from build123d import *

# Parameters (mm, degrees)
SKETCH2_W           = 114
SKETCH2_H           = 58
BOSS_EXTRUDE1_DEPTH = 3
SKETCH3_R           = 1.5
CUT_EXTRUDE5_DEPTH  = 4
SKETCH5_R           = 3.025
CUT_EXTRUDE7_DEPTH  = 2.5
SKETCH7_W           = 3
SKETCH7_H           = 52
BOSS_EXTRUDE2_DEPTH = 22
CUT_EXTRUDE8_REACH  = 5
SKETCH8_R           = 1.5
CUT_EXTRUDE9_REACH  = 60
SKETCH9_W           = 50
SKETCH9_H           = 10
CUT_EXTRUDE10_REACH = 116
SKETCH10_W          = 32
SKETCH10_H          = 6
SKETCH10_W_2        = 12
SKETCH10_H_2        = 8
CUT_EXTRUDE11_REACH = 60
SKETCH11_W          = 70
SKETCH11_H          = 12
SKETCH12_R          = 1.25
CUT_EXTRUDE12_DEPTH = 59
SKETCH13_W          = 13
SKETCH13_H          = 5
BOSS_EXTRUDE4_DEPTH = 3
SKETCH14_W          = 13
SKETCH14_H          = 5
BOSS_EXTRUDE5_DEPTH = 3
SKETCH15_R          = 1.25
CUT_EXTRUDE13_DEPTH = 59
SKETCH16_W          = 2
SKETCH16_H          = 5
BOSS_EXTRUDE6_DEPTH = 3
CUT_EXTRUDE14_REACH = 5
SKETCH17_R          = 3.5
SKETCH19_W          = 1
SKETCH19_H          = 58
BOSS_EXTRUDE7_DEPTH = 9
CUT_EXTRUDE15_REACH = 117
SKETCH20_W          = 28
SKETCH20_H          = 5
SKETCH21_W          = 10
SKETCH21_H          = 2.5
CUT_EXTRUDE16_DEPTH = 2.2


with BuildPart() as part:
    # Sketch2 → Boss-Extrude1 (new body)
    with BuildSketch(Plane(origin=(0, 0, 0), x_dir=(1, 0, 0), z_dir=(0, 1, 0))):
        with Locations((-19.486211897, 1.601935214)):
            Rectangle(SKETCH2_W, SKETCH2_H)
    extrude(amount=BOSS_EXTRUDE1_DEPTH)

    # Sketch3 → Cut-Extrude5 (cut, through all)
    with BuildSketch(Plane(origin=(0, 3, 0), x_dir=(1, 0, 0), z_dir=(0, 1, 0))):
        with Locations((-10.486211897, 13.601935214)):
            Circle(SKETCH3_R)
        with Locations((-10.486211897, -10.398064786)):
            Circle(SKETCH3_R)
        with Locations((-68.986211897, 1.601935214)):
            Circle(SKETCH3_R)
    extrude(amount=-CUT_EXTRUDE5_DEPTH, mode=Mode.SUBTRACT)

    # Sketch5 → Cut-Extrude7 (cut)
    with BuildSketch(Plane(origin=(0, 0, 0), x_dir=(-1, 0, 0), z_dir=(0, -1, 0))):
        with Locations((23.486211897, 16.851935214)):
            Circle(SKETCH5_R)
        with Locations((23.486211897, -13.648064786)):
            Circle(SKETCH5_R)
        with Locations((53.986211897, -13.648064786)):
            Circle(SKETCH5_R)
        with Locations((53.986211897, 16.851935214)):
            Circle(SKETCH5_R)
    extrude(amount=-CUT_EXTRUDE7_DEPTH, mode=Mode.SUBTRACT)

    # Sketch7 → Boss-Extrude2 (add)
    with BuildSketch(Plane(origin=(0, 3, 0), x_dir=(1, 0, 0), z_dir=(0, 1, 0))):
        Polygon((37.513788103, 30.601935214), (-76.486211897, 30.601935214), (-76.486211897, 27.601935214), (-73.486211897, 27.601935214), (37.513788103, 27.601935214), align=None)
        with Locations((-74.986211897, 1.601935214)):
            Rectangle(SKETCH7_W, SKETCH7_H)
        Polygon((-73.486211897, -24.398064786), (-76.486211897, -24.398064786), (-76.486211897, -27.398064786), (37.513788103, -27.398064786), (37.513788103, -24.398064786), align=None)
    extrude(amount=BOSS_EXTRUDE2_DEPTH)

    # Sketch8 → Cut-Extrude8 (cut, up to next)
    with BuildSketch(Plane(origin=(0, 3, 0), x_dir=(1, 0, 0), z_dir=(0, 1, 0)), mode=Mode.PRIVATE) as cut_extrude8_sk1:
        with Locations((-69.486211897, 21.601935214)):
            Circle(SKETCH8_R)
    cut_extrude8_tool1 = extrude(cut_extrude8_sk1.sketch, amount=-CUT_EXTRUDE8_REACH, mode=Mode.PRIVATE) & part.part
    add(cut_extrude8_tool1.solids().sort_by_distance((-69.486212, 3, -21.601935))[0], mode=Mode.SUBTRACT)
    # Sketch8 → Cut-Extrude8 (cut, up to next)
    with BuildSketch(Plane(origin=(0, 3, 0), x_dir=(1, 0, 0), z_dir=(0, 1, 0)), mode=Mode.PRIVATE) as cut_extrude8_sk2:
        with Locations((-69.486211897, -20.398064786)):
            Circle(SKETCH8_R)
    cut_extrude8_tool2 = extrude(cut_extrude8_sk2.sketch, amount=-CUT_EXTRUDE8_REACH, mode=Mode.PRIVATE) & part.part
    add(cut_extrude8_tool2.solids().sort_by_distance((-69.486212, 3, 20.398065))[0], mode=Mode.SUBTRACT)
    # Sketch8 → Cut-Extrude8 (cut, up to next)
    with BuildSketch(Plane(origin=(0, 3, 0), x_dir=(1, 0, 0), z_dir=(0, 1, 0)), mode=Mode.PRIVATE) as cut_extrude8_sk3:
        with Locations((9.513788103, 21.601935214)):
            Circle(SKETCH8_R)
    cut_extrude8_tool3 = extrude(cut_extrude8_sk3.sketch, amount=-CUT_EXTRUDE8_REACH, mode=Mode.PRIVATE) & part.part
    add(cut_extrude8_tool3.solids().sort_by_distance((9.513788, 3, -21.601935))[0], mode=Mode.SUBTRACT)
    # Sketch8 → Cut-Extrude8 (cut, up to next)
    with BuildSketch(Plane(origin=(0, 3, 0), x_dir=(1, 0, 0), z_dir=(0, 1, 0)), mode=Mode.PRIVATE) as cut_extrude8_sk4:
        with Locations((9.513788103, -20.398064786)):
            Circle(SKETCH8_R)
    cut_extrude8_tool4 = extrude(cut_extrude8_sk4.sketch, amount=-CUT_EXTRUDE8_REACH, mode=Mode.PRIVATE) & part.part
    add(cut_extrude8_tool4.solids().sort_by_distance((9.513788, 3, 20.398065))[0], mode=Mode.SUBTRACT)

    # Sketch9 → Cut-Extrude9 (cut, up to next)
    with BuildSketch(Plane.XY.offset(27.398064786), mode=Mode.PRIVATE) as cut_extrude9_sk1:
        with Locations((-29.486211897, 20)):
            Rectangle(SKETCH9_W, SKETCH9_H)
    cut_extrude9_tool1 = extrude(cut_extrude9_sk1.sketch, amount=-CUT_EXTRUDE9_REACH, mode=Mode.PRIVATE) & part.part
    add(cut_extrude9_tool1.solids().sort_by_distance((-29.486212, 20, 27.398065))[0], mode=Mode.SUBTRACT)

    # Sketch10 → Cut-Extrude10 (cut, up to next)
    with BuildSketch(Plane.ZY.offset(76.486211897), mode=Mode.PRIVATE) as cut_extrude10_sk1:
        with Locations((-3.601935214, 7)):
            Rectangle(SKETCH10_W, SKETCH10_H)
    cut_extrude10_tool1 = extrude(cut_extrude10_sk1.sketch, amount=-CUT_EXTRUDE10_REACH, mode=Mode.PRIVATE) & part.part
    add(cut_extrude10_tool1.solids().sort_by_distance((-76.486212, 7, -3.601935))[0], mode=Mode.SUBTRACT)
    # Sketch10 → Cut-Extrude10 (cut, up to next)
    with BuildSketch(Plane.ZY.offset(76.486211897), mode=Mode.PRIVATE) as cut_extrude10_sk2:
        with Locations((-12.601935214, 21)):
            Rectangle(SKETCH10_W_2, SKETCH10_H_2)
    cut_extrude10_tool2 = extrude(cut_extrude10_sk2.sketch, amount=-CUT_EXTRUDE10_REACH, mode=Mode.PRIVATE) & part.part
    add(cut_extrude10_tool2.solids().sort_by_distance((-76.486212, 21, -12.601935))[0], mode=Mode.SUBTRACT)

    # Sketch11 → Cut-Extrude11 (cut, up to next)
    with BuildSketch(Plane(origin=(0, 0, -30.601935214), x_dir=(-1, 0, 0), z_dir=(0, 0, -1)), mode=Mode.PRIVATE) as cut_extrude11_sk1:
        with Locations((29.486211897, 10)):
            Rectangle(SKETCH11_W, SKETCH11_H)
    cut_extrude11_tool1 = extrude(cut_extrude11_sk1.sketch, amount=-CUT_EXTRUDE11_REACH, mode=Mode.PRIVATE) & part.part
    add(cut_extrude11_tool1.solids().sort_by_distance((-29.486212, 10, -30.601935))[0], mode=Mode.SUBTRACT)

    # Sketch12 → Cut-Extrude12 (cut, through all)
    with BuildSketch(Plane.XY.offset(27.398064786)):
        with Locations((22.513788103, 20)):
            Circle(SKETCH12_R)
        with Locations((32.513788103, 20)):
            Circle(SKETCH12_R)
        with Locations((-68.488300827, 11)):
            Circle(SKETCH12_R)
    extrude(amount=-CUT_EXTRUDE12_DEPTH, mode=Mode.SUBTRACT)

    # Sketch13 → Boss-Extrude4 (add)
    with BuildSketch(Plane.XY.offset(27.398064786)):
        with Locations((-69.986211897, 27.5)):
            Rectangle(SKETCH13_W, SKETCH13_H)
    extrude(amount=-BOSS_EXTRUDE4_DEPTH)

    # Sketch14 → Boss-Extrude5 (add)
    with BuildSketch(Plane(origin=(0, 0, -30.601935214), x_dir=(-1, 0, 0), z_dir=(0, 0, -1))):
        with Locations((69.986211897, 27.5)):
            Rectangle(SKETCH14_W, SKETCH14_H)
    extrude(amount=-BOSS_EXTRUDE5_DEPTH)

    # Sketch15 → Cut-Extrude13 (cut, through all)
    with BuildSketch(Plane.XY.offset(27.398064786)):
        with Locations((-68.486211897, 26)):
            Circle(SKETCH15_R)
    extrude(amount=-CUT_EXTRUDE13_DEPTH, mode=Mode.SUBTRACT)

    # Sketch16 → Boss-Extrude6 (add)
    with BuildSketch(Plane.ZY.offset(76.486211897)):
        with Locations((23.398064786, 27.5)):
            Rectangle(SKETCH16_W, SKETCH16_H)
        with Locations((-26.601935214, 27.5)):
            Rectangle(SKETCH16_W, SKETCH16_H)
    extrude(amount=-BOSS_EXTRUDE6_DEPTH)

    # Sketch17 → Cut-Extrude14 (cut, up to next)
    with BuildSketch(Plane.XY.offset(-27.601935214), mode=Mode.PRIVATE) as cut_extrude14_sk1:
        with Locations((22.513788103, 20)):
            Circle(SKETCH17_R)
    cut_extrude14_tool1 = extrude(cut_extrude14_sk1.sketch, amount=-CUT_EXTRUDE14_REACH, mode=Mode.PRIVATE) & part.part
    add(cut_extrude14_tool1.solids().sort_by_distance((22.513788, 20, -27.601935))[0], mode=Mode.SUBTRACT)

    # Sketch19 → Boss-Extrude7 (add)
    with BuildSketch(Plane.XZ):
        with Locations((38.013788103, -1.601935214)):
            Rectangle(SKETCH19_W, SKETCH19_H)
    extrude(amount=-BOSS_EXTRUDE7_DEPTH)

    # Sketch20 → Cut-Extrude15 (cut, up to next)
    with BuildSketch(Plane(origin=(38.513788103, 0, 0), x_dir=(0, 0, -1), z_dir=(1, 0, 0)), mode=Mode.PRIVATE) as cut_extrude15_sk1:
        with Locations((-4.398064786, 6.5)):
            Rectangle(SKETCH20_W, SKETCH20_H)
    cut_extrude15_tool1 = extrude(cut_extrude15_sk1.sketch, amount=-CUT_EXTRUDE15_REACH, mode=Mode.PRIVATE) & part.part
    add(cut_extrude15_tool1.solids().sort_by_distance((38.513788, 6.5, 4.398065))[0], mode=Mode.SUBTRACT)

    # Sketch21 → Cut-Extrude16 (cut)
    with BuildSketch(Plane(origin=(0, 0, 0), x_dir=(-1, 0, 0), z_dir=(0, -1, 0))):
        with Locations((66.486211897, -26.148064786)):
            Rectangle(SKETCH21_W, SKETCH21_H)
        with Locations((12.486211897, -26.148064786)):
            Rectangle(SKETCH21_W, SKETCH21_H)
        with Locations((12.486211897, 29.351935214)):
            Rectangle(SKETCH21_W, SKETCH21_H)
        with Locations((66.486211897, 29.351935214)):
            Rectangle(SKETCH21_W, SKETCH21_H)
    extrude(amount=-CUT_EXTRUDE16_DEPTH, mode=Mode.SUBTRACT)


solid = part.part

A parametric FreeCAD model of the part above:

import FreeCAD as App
import Part
import Sketcher

V = App.Vector


def add_polygon(sketch, points):
    """Adds a closed chain of lines whose ends are joined by coincident constraints."""
    first, n = sketch.GeometryCount, len(points)
    for a, b in zip(points, points[1:] + points[:1]):
        sketch.addGeometry(Part.LineSegment(App.Vector(*a, 0), App.Vector(*b, 0)), False)
    for i in range(n):
        sketch.addConstraint(Sketcher.Constraint("Coincident", first + i, 2, first + (i + 1) % n, 1))

doc = App.newDocument("Part")
params = doc.addObject("Spreadsheet::Sheet", "Params")
for row, (alias, value) in enumerate([
    ("sketch1_width", "114 mm"),
    ("sketch1_height", "58 mm"),
    ("pad1_length", "3 mm"),
    ("sketch2_diameter", "3 mm"),
    ("sketch3_diameter", "6.05 mm"),
    ("pocket2_length", "2.5 mm"),
    ("sketch4_width", "114 mm"),
    ("sketch4_width2", "111 mm"),
    ("sketch4_height", "58 mm"),
    ("sketch4_height2", "3 mm"),
    ("pad2_length", "22 mm"),
    ("sketch5_diameter", "3 mm"),
    ("sketch6_diameter", "3 mm"),
    ("sketch7_diameter", "3 mm"),
    ("sketch8_diameter", "3 mm"),
    ("sketch9_width", "50 mm"),
    ("sketch9_height", "10 mm"),
    ("sketch10_width", "6 mm"),
    ("sketch10_height", "32 mm"),
    ("sketch11_width", "8 mm"),
    ("sketch11_height", "12 mm"),
    ("sketch12_width", "70 mm"),
    ("sketch12_height", "12 mm"),
    ("sketch13_diameter", "2.5 mm"),
    ("sketch14_width", "13 mm"),
    ("sketch14_height", "5 mm"),
    ("pad3_length", "3 mm"),
    ("sketch15_width", "13 mm"),
    ("sketch15_height", "5 mm"),
    ("pad4_length", "3 mm"),
    ("sketch16_diameter", "2.5 mm"),
    ("sketch17_width", "5 mm"),
    ("sketch17_height", "2 mm"),
    ("pad5_length", "3 mm"),
    ("sketch18_diameter", "7 mm"),
    ("pocket13_length", "3 mm"),
    ("sketch19_width", "1 mm"),
    ("sketch19_height", "58 mm"),
    ("pad6_length", "9 mm"),
    ("sketch20_width", "5 mm"),
    ("sketch20_height", "28 mm"),
    ("sketch21_width", "10 mm"),
    ("sketch21_height", "2.5 mm"),
    ("pocket15_length", "2.2 mm"),
], start=1):
    params.set(f"A{row}", alias)
    params.set(f"B{row}", "=" + value)
    params.setAlias(f"B{row}", alias)

body = doc.addObject("PartDesign::Body", "Body")

# Sketch on XZ plane
sketch1 = body.newObject("Sketcher::SketchObject", "Sketch")
sketch1.AttachmentSupport = (doc.getObject("XZ_Plane"), [""])
sketch1.MapMode = "FlatFace"
add_polygon(sketch1, [(-76.486212, -30.601935), (-76.486212, 27.398065), (37.513788, 27.398065), (37.513788, -30.601935)])  # lines 0-3
sketch1.addConstraint(Sketcher.Constraint("Vertical", 0))
sketch1.addConstraint(Sketcher.Constraint("Horizontal", 1))
sketch1.addConstraint(Sketcher.Constraint("Vertical", 2))
sketch1.addConstraint(Sketcher.Constraint("Horizontal", 3))
sketch1.addConstraint(Sketcher.Constraint("DistanceX", 1, 1, 1, 2, 114.0))
sketch1.addConstraint(Sketcher.Constraint("DistanceY", 0, 1, 0, 2, 58.0))
sketch1.addConstraint(Sketcher.Constraint("DistanceX", 0, 2, -1, 1, 76.486212))
sketch1.addConstraint(Sketcher.Constraint("DistanceY", -1, 1, 0, 2, 27.398065))
sketch1.setExpression("Constraints[8]", "Params.sketch1_width")
sketch1.setExpression("Constraints[9]", "Params.sketch1_height")
pad1 = body.newObject("PartDesign::Pad", "Pad")
pad1.Profile = sketch1
pad1.setExpression("Length", "Params.pad1_length")
pad1.Reversed = True

# Sketch on XZ plane
sketch2 = body.newObject("Sketcher::SketchObject", "Sketch001")
sketch2.AttachmentSupport = (doc.getObject("XZ_Plane"), [""])
sketch2.MapMode = "FlatFace"
sketch2.AttachmentOffset = App.Placement(V(0, 0, -3), App.Rotation())
sketch2.addGeometry(Part.Circle(V(-10.486212, -13.601935, 0), V(0, 0, 1), 1.5), False)
sketch2.addGeometry(Part.Circle(V(-10.486212, 10.398065, 0), V(0, 0, 1), 1.5), False)
sketch2.addGeometry(Part.Circle(V(-68.986212, -1.601935, 0), V(0, 0, 1), 1.5), False)
sketch2.addConstraint(Sketcher.Constraint("Equal", 0, 1))
sketch2.addConstraint(Sketcher.Constraint("Equal", 1, 2))
sketch2.addConstraint(Sketcher.Constraint("Vertical", 0, 3, 1, 3))
sketch2.addConstraint(Sketcher.Constraint("Diameter", 0, 3.0))
sketch2.addConstraint(Sketcher.Constraint("DistanceY", 0, 3, 1, 3, 24.0))
sketch2.addConstraint(Sketcher.Constraint("DistanceY", 0, 3, 2, 3, 12.0))
sketch2.addConstraint(Sketcher.Constraint("DistanceX", 2, 3, 0, 3, 58.5))
sketch2.addConstraint(Sketcher.Constraint("DistanceX", 0, 3, -1, 1, 10.486212))
sketch2.addConstraint(Sketcher.Constraint("DistanceY", 0, 3, -1, 1, 13.601935))
sketch2.setExpression("Constraints[3]", "Params.sketch2_diameter")
pocket1 = body.newObject("PartDesign::Pocket", "Pocket")
pocket1.Profile = sketch2
pocket1.Type = "ThroughAll"
pocket1.Reversed = True

# Sketch on XZ plane
sketch3 = body.newObject("Sketcher::SketchObject", "Sketch002")
sketch3.AttachmentSupport = (doc.getObject("XZ_Plane"), [""])
sketch3.MapMode = "FlatFace"
sketch3.addGeometry(Part.Circle(V(-23.486212, -16.851935, 0), V(0, 0, 1), 3.025), False)
sketch3.addGeometry(Part.Circle(V(-23.486212, 13.648065, 0), V(0, 0, 1), 3.025), False)
sketch3.addGeometry(Part.Circle(V(-53.986212, 13.648065, 0), V(0, 0, 1), 3.025), False)
sketch3.addGeometry(Part.Circle(V(-53.986212, -16.851935, 0), V(0, 0, 1), 3.025), False)
sketch3.addConstraint(Sketcher.Constraint("Equal", 0, 1))
sketch3.addConstraint(Sketcher.Constraint("Equal", 1, 2))
sketch3.addConstraint(Sketcher.Constraint("Equal", 2, 3))
sketch3.addConstraint(Sketcher.Constraint("Horizontal", 1, 3, 2, 3))
sketch3.addConstraint(Sketcher.Constraint("Horizontal", 0, 3, 3, 3))
sketch3.addConstraint(Sketcher.Constraint("Vertical", 0, 3, 1, 3))
sketch3.addConstraint(Sketcher.Constraint("Vertical", 2, 3, 3, 3))
sketch3.addConstraint(Sketcher.Constraint("Diameter", 0, 6.05))
sketch3.addConstraint(Sketcher.Constraint("DistanceY", 0, 3, 1, 3, 30.5))
sketch3.addConstraint(Sketcher.Constraint("DistanceX", 2, 3, 1, 3, 30.5))
sketch3.addConstraint(Sketcher.Constraint("DistanceX", 0, 3, -1, 1, 23.486212))
sketch3.addConstraint(Sketcher.Constraint("DistanceY", 0, 3, -1, 1, 16.851935))
sketch3.setExpression("Constraints[7]", "Params.sketch3_diameter")
pocket2 = body.newObject("PartDesign::Pocket", "Pocket001")
pocket2.Profile = sketch3
pocket2.setExpression("Length", "Params.pocket2_length")

# Sketch on XZ plane
sketch4 = body.newObject("Sketcher::SketchObject", "Sketch003")
sketch4.AttachmentSupport = (doc.getObject("XZ_Plane"), [""])
sketch4.MapMode = "FlatFace"
sketch4.AttachmentOffset = App.Placement(V(0, 0, -3), App.Rotation())
add_polygon(sketch4, [(37.513788, -30.601935), (-76.486212, -30.601935), (-76.486212, 27.398065), (37.513788, 27.398065), (37.513788, 24.398065), (-73.486212, 24.398065), (-73.486212, -27.601935), (37.513788, -27.601935)])  # lines 0-7
sketch4.addConstraint(Sketcher.Constraint("Horizontal", 0))
sketch4.addConstraint(Sketcher.Constraint("Vertical", 1))
sketch4.addConstraint(Sketcher.Constraint("Horizontal", 2))
sketch4.addConstraint(Sketcher.Constraint("Vertical", 3))
sketch4.addConstraint(Sketcher.Constraint("Horizontal", 4))
sketch4.addConstraint(Sketcher.Constraint("Vertical", 5))
sketch4.addConstraint(Sketcher.Constraint("Horizontal", 6))
sketch4.addConstraint(Sketcher.Constraint("Vertical", 7))
sketch4.addConstraint(Sketcher.Constraint("Vertical", 3, 2, 6, 2))
sketch4.addConstraint(Sketcher.Constraint("Equal", 3, 7))
sketch4.addConstraint(Sketcher.Constraint("DistanceX", 0, 2, 0, 1, 114.0))
sketch4.addConstraint(Sketcher.Constraint("DistanceX", 4, 2, 4, 1, 111.0))
sketch4.addConstraint(Sketcher.Constraint("DistanceY", 1, 1, 1, 2, 58.0))
sketch4.addConstraint(Sketcher.Constraint("DistanceY", 3, 2, 3, 1, 3.0))
sketch4.addConstraint(Sketcher.Constraint("DistanceX", 0, 2, -1, 1, 76.486212))
sketch4.addConstraint(Sketcher.Constraint("DistanceY", 0, 2, -1, 1, 30.601935))
sketch4.setExpression("Constraints[18]", "Params.sketch4_width")
sketch4.setExpression("Constraints[19]", "Params.sketch4_width2")
sketch4.setExpression("Constraints[20]", "Params.sketch4_height")
sketch4.setExpression("Constraints[21]", "Params.sketch4_height2")
pad2 = body.newObject("PartDesign::Pad", "Pad001")
pad2.Profile = sketch4
pad2.setExpression("Length", "Params.pad2_length")
pad2.Reversed = True

# Sketch on XZ plane
sketch5 = body.newObject("Sketcher::SketchObject", "Sketch004")
sketch5.AttachmentSupport = (doc.getObject("XZ_Plane"), [""])
sketch5.MapMode = "FlatFace"
sketch5.AttachmentOffset = App.Placement(V(0, 0, -3), App.Rotation())
sketch5.addGeometry(Part.Circle(V(-69.486212, -21.601935, 0), V(0, 0, 1), 1.5), False)
sketch5.addConstraint(Sketcher.Constraint("Diameter", 0, 3.0))
sketch5.addConstraint(Sketcher.Constraint("DistanceX", 0, 3, -1, 1, 69.486212))
sketch5.addConstraint(Sketcher.Constraint("DistanceY", 0, 3, -1, 1, 21.601935))
sketch5.setExpression("Constraints[0]", "Params.sketch5_diameter")
pocket3 = body.newObject("PartDesign::Pocket", "Pocket002")
pocket3.Profile = sketch5
pocket3.Type = "UpToFirst"
pocket3.Reversed = True

# Sketch on XZ plane
sketch6 = body.newObject("Sketcher::SketchObject", "Sketch005")
sketch6.AttachmentSupport = (doc.getObject("XZ_Plane"), [""])
sketch6.MapMode = "FlatFace"
sketch6.AttachmentOffset = App.Placement(V(0, 0, -3), App.Rotation())
sketch6.addGeometry(Part.Circle(V(-69.486212, 20.398065, 0), V(0, 0, 1), 1.5), False)
sketch6.addConstraint(Sketcher.Constraint("Diameter", 0, 3.0))
sketch6.addConstraint(Sketcher.Constraint("DistanceX", 0, 3, -1, 1, 69.486212))
sketch6.addConstraint(Sketcher.Constraint("DistanceY", -1, 1, 0, 3, 20.398065))
sketch6.setExpression("Constraints[0]", "Params.sketch6_diameter")
pocket4 = body.newObject("PartDesign::Pocket", "Pocket003")
pocket4.Profile = sketch6
pocket4.Type = "UpToFirst"
pocket4.Reversed = True

# Sketch on XZ plane
sketch7 = body.newObject("Sketcher::SketchObject", "Sketch006")
sketch7.AttachmentSupport = (doc.getObject("XZ_Plane"), [""])
sketch7.MapMode = "FlatFace"
sketch7.AttachmentOffset = App.Placement(V(0, 0, -3), App.Rotation())
sketch7.addGeometry(Part.Circle(V(9.513788, -21.601935, 0), V(0, 0, 1), 1.5), False)
sketch7.addConstraint(Sketcher.Constraint("Diameter", 0, 3.0))
sketch7.addConstraint(Sketcher.Constraint("DistanceX", -1, 1, 0, 3, 9.513788))
sketch7.addConstraint(Sketcher.Constraint("DistanceY", 0, 3, -1, 1, 21.601935))
sketch7.setExpression("Constraints[0]", "Params.sketch7_diameter")
pocket5 = body.newObject("PartDesign::Pocket", "Pocket004")
pocket5.Profile = sketch7
pocket5.Type = "UpToFirst"
pocket5.Reversed = True

# Sketch on XZ plane
sketch8 = body.newObject("Sketcher::SketchObject", "Sketch007")
sketch8.AttachmentSupport = (doc.getObject("XZ_Plane"), [""])
sketch8.MapMode = "FlatFace"
sketch8.AttachmentOffset = App.Placement(V(0, 0, -3), App.Rotation())
sketch8.addGeometry(Part.Circle(V(9.513788, 20.398065, 0), V(0, 0, 1), 1.5), False)
sketch8.addConstraint(Sketcher.Constraint("Diameter", 0, 3.0))
sketch8.addConstraint(Sketcher.Constraint("DistanceX", -1, 1, 0, 3, 9.513788))
sketch8.addConstraint(Sketcher.Constraint("DistanceY", -1, 1, 0, 3, 20.398065))
sketch8.setExpression("Constraints[0]", "Params.sketch8_diameter")
pocket6 = body.newObject("PartDesign::Pocket", "Pocket005")
pocket6.Profile = sketch8
pocket6.Type = "UpToFirst"
pocket6.Reversed = True

# Sketch on XY plane
sketch9 = body.newObject("Sketcher::SketchObject", "Sketch008")
sketch9.AttachmentSupport = (doc.getObject("XY_Plane"), [""])
sketch9.MapMode = "FlatFace"
sketch9.AttachmentOffset = App.Placement(V(0, 0, 27.398065), App.Rotation())
add_polygon(sketch9, [(-54.486212, 25), (-54.486212, 15), (-4.486212, 15), (-4.486212, 25)])  # lines 0-3
sketch9.addConstraint(Sketcher.Constraint("Vertical", 0))
sketch9.addConstraint(Sketcher.Constraint("Horizontal", 1))
sketch9.addConstraint(Sketcher.Constraint("Vertical", 2))
sketch9.addConstraint(Sketcher.Constraint("Horizontal", 3))
sketch9.addConstraint(Sketcher.Constraint("DistanceX", 1, 1, 1, 2, 50.0))
sketch9.addConstraint(Sketcher.Constraint("DistanceY", 0, 2, 0, 1, 10.0))
sketch9.addConstraint(Sketcher.Constraint("DistanceY", -1, 1, 0, 2, 15.0))
sketch9.addConstraint(Sketcher.Constraint("DistanceX", 0, 2, -1, 1, 54.486212))
sketch9.setExpression("Constraints[8]", "Params.sketch9_width")
sketch9.setExpression("Constraints[9]", "Params.sketch9_height")
pocket7 = body.newObject("PartDesign::Pocket", "Pocket006")
pocket7.Profile = sketch9
pocket7.Type = "UpToFirst"

# Sketch on YZ plane
sketch10 = body.newObject("Sketcher::SketchObject", "Sketch009")
sketch10.AttachmentSupport = (doc.getObject("YZ_Plane"), [""])
sketch10.MapMode = "FlatFace"
sketch10.AttachmentOffset = App.Placement(V(0, 0, -76.486212), App.Rotation())
add_polygon(sketch10, [(10, -19.601935), (4, -19.601935), (4, 12.398065), (10, 12.398065)])  # lines 0-3
sketch10.addConstraint(Sketcher.Constraint("Horizontal", 0))
sketch10.addConstraint(Sketcher.Constraint("Vertical", 1))
sketch10.addConstraint(Sketcher.Constraint("Horizontal", 2))
sketch10.addConstraint(Sketcher.Constraint("Vertical", 3))
sketch10.addConstraint(Sketcher.Constraint("DistanceX", 0, 2, 0, 1, 6.0))
sketch10.addConstraint(Sketcher.Constraint("DistanceY", 1, 1, 1, 2, 32.0))
sketch10.addConstraint(Sketcher.Constraint("DistanceX", -1, 1, 0, 2, 4.0))
sketch10.addConstraint(Sketcher.Constraint("DistanceY", 0, 2, -1, 1, 19.601935))
sketch10.setExpression("Constraints[8]", "Params.sketch10_width")
sketch10.setExpression("Constraints[9]", "Params.sketch10_height")
pocket8 = body.newObject("PartDesign::Pocket", "Pocket007")
pocket8.Profile = sketch10
pocket8.Type = "UpToFirst"
pocket8.Reversed = True

# Sketch on YZ plane
sketch11 = body.newObject("Sketcher::SketchObject", "Sketch010")
sketch11.AttachmentSupport = (doc.getObject("YZ_Plane"), [""])
sketch11.MapMode = "FlatFace"
sketch11.AttachmentOffset = App.Placement(V(0, 0, -76.486212), App.Rotation())
add_polygon(sketch11, [(25, -18.601935), (17, -18.601935), (17, -6.601935), (25, -6.601935)])  # lines 0-3
sketch11.addConstraint(Sketcher.Constraint("Horizontal", 0))
sketch11.addConstraint(Sketcher.Constraint("Vertical", 1))
sketch11.addConstraint(Sketcher.Constraint("Horizontal", 2))
sketch11.addConstraint(Sketcher.Constraint("Vertical", 3))
sketch11.addConstraint(Sketcher.Constraint("DistanceX", 0, 2, 0, 1, 8.0))
sketch11.addConstraint(Sketcher.Constraint("DistanceY", 1, 1, 1, 2, 12.0))
sketch11.addConstraint(Sketcher.Constraint("DistanceX", -1, 1, 0, 2, 17.0))
sketch11.addConstraint(Sketcher.Constraint("DistanceY", 0, 2, -1, 1, 18.601935))
sketch11.setExpression("Constraints[8]", "Params.sketch11_width")
sketch11.setExpression("Constraints[9]", "Params.sketch11_height")
pocket9 = body.newObject("PartDesign::Pocket", "Pocket008")
pocket9.Profile = sketch11
pocket9.Type = "UpToFirst"
pocket9.Reversed = True

# Sketch on XY plane
sketch12 = body.newObject("Sketcher::SketchObject", "Sketch011")
sketch12.AttachmentSupport = (doc.getObject("XY_Plane"), [""])
sketch12.MapMode = "FlatFace"
sketch12.AttachmentOffset = App.Placement(V(0, 0, -30.601935), App.Rotation())
add_polygon(sketch12, [(5.513788, 16), (5.513788, 4), (-64.486212, 4), (-64.486212, 16)])  # lines 0-3
sketch12.addConstraint(Sketcher.Constraint("Vertical", 0))
sketch12.addConstraint(Sketcher.Constraint("Horizontal", 1))
sketch12.addConstraint(Sketcher.Constraint("Vertical", 2))
sketch12.addConstraint(Sketcher.Constraint("Horizontal", 3))
sketch12.addConstraint(Sketcher.Constraint("DistanceX", 1, 2, 1, 1, 70.0))
sketch12.addConstraint(Sketcher.Constraint("DistanceY", 0, 2, 0, 1, 12.0))
sketch12.addConstraint(Sketcher.Constraint("DistanceY", -1, 1, 0, 2, 4.0))
sketch12.addConstraint(Sketcher.Constraint("DistanceX", -1, 1, 0, 2, 5.513788))
sketch12.setExpression("Constraints[8]", "Params.sketch12_width")
sketch12.setExpression("Constraints[9]", "Params.sketch12_height")
pocket10 = body.newObject("PartDesign::Pocket", "Pocket009")
pocket10.Profile = sketch12
pocket10.Type = "UpToFirst"
pocket10.Reversed = True

# Sketch on XY plane
sketch13 = body.newObject("Sketcher::SketchObject", "Sketch012")
sketch13.AttachmentSupport = (doc.getObject("XY_Plane"), [""])
sketch13.MapMode = "FlatFace"
sketch13.AttachmentOffset = App.Placement(V(0, 0, 27.398065), App.Rotation())
sketch13.addGeometry(Part.Circle(V(22.513788, 20, 0), V(0, 0, 1), 1.25), False)
sketch13.addGeometry(Part.Circle(V(32.513788, 20, 0), V(0, 0, 1), 1.25), False)
sketch13.addGeometry(Part.Circle(V(-68.488301, 11, 0), V(0, 0, 1), 1.25), False)
sketch13.addConstraint(Sketcher.Constraint("Equal", 0, 1))
sketch13.addConstraint(Sketcher.Constraint("Equal", 1, 2))
sketch13.addConstraint(Sketcher.Constraint("Horizontal", 0, 3, 1, 3))
sketch13.addConstraint(Sketcher.Constraint("Diameter", 0, 2.5))
sketch13.addConstraint(Sketcher.Constraint("DistanceY", -1, 1, 0, 3, 20.0))
sketch13.addConstraint(Sketcher.Constraint("DistanceY", -1, 1, 2, 3, 11.0))
sketch13.addConstraint(Sketcher.Constraint("DistanceX", 0, 3, 1, 3, 10.0))
sketch13.addConstraint(Sketcher.Constraint("DistanceX", 2, 3, -1, 1, 68.488301))
sketch13.addConstraint(Sketcher.Constraint("DistanceX", -1, 1, 0, 3, 22.513788))
sketch13.setExpression("Constraints[3]", "Params.sketch13_diameter")
pocket11 = body.newObject("PartDesign::Pocket", "Pocket010")
pocket11.Profile = sketch13
pocket11.Type = "ThroughAll"

# Sketch on XY plane
sketch14 = body.newObject("Sketcher::SketchObject", "Sketch013")
sketch14.AttachmentSupport = (doc.getObject("XY_Plane"), [""])
sketch14.MapMode = "FlatFace"
sketch14.AttachmentOffset = App.Placement(V(0, 0, 27.398065), App.Rotation())
add_polygon(sketch14, [(-76.486212, 30), (-76.486212, 25), (-63.486212, 25), (-63.486212, 30)])  # lines 0-3
sketch14.addConstraint(Sketcher.Constraint("Vertical", 0))
sketch14.addConstraint(Sketcher.Constraint("Horizontal", 1))
sketch14.addConstraint(Sketcher.Constraint("Vertical", 2))
sketch14.addConstraint(Sketcher.Constraint("Horizontal", 3))
sketch14.addConstraint(Sketcher.Constraint("DistanceX", 1, 1, 1, 2, 13.0))
sketch14.addConstraint(Sketcher.Constraint("DistanceY", 0, 2, 0, 1, 5.0))
sketch14.addConstraint(Sketcher.Constraint("DistanceY", -1, 1, 0, 2, 25.0))
sketch14.addConstraint(Sketcher.Constraint("DistanceX", 0, 2, -1, 1, 76.486212))
sketch14.setExpression("Constraints[8]", "Params.sketch14_width")
sketch14.setExpression("Constraints[9]", "Params.sketch14_height")
pad3 = body.newObject("PartDesign::Pad", "Pad002")
pad3.Profile = sketch14
pad3.setExpression("Length", "Params.pad3_length")
pad3.Reversed = True

# Sketch on XY plane
sketch15 = body.newObject("Sketcher::SketchObject", "Sketch014")
sketch15.AttachmentSupport = (doc.getObject("XY_Plane"), [""])
sketch15.MapMode = "FlatFace"
sketch15.AttachmentOffset = App.Placement(V(0, 0, -30.601935), App.Rotation())
add_polygon(sketch15, [(-63.486212, 30), (-63.486212, 25), (-76.486212, 25), (-76.486212, 30)])  # lines 0-3
sketch15.addConstraint(Sketcher.Constraint("Vertical", 0))
sketch15.addConstraint(Sketcher.Constraint("Horizontal", 1))
sketch15.addConstraint(Sketcher.Constraint("Vertical", 2))
sketch15.addConstraint(Sketcher.Constraint("Horizontal", 3))
sketch15.addConstraint(Sketcher.Constraint("DistanceX", 1, 2, 1, 1, 13.0))
sketch15.addConstraint(Sketcher.Constraint("DistanceY", 0, 2, 0, 1, 5.0))
sketch15.addConstraint(Sketcher.Constraint("DistanceY", -1, 1, 0, 2, 25.0))
sketch15.addConstraint(Sketcher.Constraint("DistanceX", 0, 2, -1, 1, 63.486212))
sketch15.setExpression("Constraints[8]", "Params.sketch15_width")
sketch15.setExpression("Constraints[9]", "Params.sketch15_height")
pad4 = body.newObject("PartDesign::Pad", "Pad003")
pad4.Profile = sketch15
pad4.setExpression("Length", "Params.pad4_length")

# Sketch on XY plane
sketch16 = body.newObject("Sketcher::SketchObject", "Sketch015")
sketch16.AttachmentSupport = (doc.getObject("XY_Plane"), [""])
sketch16.MapMode = "FlatFace"
sketch16.AttachmentOffset = App.Placement(V(0, 0, 27.398065), App.Rotation())
sketch16.addGeometry(Part.Circle(V(-68.486212, 26, 0), V(0, 0, 1), 1.25), False)
sketch16.addConstraint(Sketcher.Constraint("Diameter", 0, 2.5))
sketch16.addConstraint(Sketcher.Constraint("DistanceY", -1, 1, 0, 3, 26.0))
sketch16.addConstraint(Sketcher.Constraint("DistanceX", 0, 3, -1, 1, 68.486212))
sketch16.setExpression("Constraints[0]", "Params.sketch16_diameter")
pocket12 = body.newObject("PartDesign::Pocket", "Pocket011")
pocket12.Profile = sketch16
pocket12.Type = "ThroughAll"

# Sketch on YZ plane
sketch17 = body.newObject("Sketcher::SketchObject", "Sketch016")
sketch17.AttachmentSupport = (doc.getObject("YZ_Plane"), [""])
sketch17.MapMode = "FlatFace"
sketch17.AttachmentOffset = App.Placement(V(0, 0, -76.486212), App.Rotation())
add_polygon(sketch17, [(30, 22.398065), (25, 22.398065), (25, 24.398065), (30, 24.398065)])  # lines 0-3
add_polygon(sketch17, [(30, -27.601935), (25, -27.601935), (25, -25.601935), (30, -25.601935)])  # lines 4-7
sketch17.addConstraint(Sketcher.Constraint("Horizontal", 0))
sketch17.addConstraint(Sketcher.Constraint("Vertical", 1))
sketch17.addConstraint(Sketcher.Constraint("Horizontal", 2))
sketch17.addConstraint(Sketcher.Constraint("Vertical", 3))
sketch17.addConstraint(Sketcher.Constraint("Horizontal", 4))
sketch17.addConstraint(Sketcher.Constraint("Vertical", 5))
sketch17.addConstraint(Sketcher.Constraint("Horizontal", 6))
sketch17.addConstraint(Sketcher.Constraint("Vertical", 7))
sketch17.addConstraint(Sketcher.Constraint("Vertical", 1, 2, 4, 2))
sketch17.addConstraint(Sketcher.Constraint("Vertical", 3, 2, 6, 2))
sketch17.addConstraint(Sketcher.Constraint("Equal", 3, 5))
sketch17.addConstraint(Sketcher.Constraint("DistanceX", 0, 2, 0, 1, 5.0))
sketch17.addConstraint(Sketcher.Constraint("DistanceY", 1, 1, 1, 2, 2.0))
sketch17.addConstraint(Sketcher.Constraint("DistanceX", -1, 1, 0, 2, 25.0))
sketch17.addConstraint(Sketcher.Constraint("DistanceY", 4, 2, 0, 2, 50.0))
sketch17.addConstraint(Sketcher.Constraint("DistanceY", -1, 1, 0, 2, 22.398065))
sketch17.setExpression("Constraints[19]", "Params.sketch17_width")
sketch17.setExpression("Constraints[20]", "Params.sketch17_height")
pad5 = body.newObject("PartDesign::Pad", "Pad004")
pad5.Profile = sketch17
pad5.setExpression("Length", "Params.pad5_length")

# Sketch on XY plane
sketch18 = body.newObject("Sketcher::SketchObject", "Sketch017")
sketch18.AttachmentSupport = (doc.getObject("XY_Plane"), [""])
sketch18.MapMode = "FlatFace"
sketch18.AttachmentOffset = App.Placement(V(0, 0, -27.601935), App.Rotation())
sketch18.addGeometry(Part.Circle(V(22.513788, 20, 0), V(0, 0, 1), 3.5), False)
sketch18.addConstraint(Sketcher.Constraint("Diameter", 0, 7.0))
sketch18.addConstraint(Sketcher.Constraint("DistanceY", -1, 1, 0, 3, 20.0))
sketch18.addConstraint(Sketcher.Constraint("DistanceX", -1, 1, 0, 3, 22.513788))
sketch18.setExpression("Constraints[0]", "Params.sketch18_diameter")
pocket13 = body.newObject("PartDesign::Pocket", "Pocket012")
pocket13.Profile = sketch18
pocket13.setExpression("Length", "Params.pocket13_length")

# Sketch on XZ plane
sketch19 = body.newObject("Sketcher::SketchObject", "Sketch018")
sketch19.AttachmentSupport = (doc.getObject("XZ_Plane"), [""])
sketch19.MapMode = "FlatFace"
add_polygon(sketch19, [(37.513788, 27.398065), (37.513788, -30.601935), (38.513788, -30.601935), (38.513788, 27.398065)])  # lines 0-3
sketch19.addConstraint(Sketcher.Constraint("Vertical", 0))
sketch19.addConstraint(Sketcher.Constraint("Horizontal", 1))
sketch19.addConstraint(Sketcher.Constraint("Vertical", 2))
sketch19.addConstraint(Sketcher.Constraint("Horizontal", 3))
sketch19.addConstraint(Sketcher.Constraint("DistanceX", 1, 1, 1, 2, 1.0))
sketch19.addConstraint(Sketcher.Constraint("DistanceY", 0, 2, 0, 1, 58.0))
sketch19.addConstraint(Sketcher.Constraint("DistanceX", -1, 1, 0, 2, 37.513788))
sketch19.addConstraint(Sketcher.Constraint("DistanceY", 0, 2, -1, 1, 30.601935))
sketch19.setExpression("Constraints[8]", "Params.sketch19_width")
sketch19.setExpression("Constraints[9]", "Params.sketch19_height")
pad6 = body.newObject("PartDesign::Pad", "Pad005")
pad6.Profile = sketch19
pad6.setExpression("Length", "Params.pad6_length")
pad6.Reversed = True

# Sketch on YZ plane
sketch20 = body.newObject("Sketcher::SketchObject", "Sketch019")
sketch20.AttachmentSupport = (doc.getObject("YZ_Plane"), [""])
sketch20.MapMode = "FlatFace"
sketch20.AttachmentOffset = App.Placement(V(0, 0, 38.513788), App.Rotation())
add_polygon(sketch20, [(9, 18.398065), (4, 18.398065), (4, -9.601935), (9, -9.601935)])  # lines 0-3
sketch20.addConstraint(Sketcher.Constraint("Horizontal", 0))
sketch20.addConstraint(Sketcher.Constraint("Vertical", 1))
sketch20.addConstraint(Sketcher.Constraint("Horizontal", 2))
sketch20.addConstraint(Sketcher.Constraint("Vertical", 3))
sketch20.addConstraint(Sketcher.Constraint("DistanceX", 0, 2, 0, 1, 5.0))
sketch20.addConstraint(Sketcher.Constraint("DistanceY", 1, 2, 1, 1, 28.0))
sketch20.addConstraint(Sketcher.Constraint("DistanceX", -1, 1, 0, 2, 4.0))
sketch20.addConstraint(Sketcher.Constraint("DistanceY", -1, 1, 0, 2, 18.398065))
sketch20.setExpression("Constraints[8]", "Params.sketch20_width")
sketch20.setExpression("Constraints[9]", "Params.sketch20_height")
pocket14 = body.newObject("PartDesign::Pocket", "Pocket013")
pocket14.Profile = sketch20
pocket14.Type = "UpToFirst"

# Sketch on XZ plane
sketch21 = body.newObject("Sketcher::SketchObject", "Sketch020")
sketch21.AttachmentSupport = (doc.getObject("XZ_Plane"), [""])
sketch21.MapMode = "FlatFace"
add_polygon(sketch21, [(-61.486212, 24.898065), (-61.486212, 27.398065), (-71.486212, 27.398065), (-71.486212, 24.898065)])  # lines 0-3
add_polygon(sketch21, [(-7.486212, 24.898065), (-7.486212, 27.398065), (-17.486212, 27.398065), (-17.486212, 24.898065)])  # lines 4-7
add_polygon(sketch21, [(-7.486212, -30.601935), (-7.486212, -28.101935), (-17.486212, -28.101935), (-17.486212, -30.601935)])  # lines 8-11
add_polygon(sketch21, [(-61.486212, -30.601935), (-61.486212, -28.101935), (-71.486212, -28.101935), (-71.486212, -30.601935)])  # lines 12-15
sketch21.addConstraint(Sketcher.Constraint("Vertical", 0))
sketch21.addConstraint(Sketcher.Constraint("Horizontal", 1))
sketch21.addConstraint(Sketcher.Constraint("Vertical", 2))
sketch21.addConstraint(Sketcher.Constraint("Horizontal", 3))
sketch21.addConstraint(Sketcher.Constraint("Vertical", 4))
sketch21.addConstraint(Sketcher.Constraint("Horizontal", 5))
sketch21.addConstraint(Sketcher.Constraint("Vertical", 6))
sketch21.addConstraint(Sketcher.Constraint("Horizontal", 7))
sketch21.addConstraint(Sketcher.Constraint("Vertical", 8))
sketch21.addConstraint(Sketcher.Constraint("Horizontal", 9))
sketch21.addConstraint(Sketcher.Constraint("Vertical", 10))
sketch21.addConstraint(Sketcher.Constraint("Horizontal", 11))
sketch21.addConstraint(Sketcher.Constraint("Vertical", 12))
sketch21.addConstraint(Sketcher.Constraint("Horizontal", 13))
sketch21.addConstraint(Sketcher.Constraint("Vertical", 14))
sketch21.addConstraint(Sketcher.Constraint("Horizontal", 15))
sketch21.addConstraint(Sketcher.Constraint("Horizontal", 1, 2, 4, 2))
sketch21.addConstraint(Sketcher.Constraint("Horizontal", 3, 2, 6, 2))
sketch21.addConstraint(Sketcher.Constraint("Horizontal", 9, 2, 12, 2))
sketch21.addConstraint(Sketcher.Constraint("Horizontal", 11, 2, 14, 2))
sketch21.addConstraint(Sketcher.Constraint("Vertical", 7, 2, 8, 2))
sketch21.addConstraint(Sketcher.Constraint("Vertical", 6, 2, 9, 2))
sketch21.addConstraint(Sketcher.Constraint("Vertical", 3, 2, 12, 2))
sketch21.addConstraint(Sketcher.Constraint("Vertical", 2, 2, 13, 2))
sketch21.addConstraint(Sketcher.Constraint("Equal", 3, 5))
sketch21.addConstraint(Sketcher.Constraint("Equal", 6, 8))
sketch21.addConstraint(Sketcher.Constraint("DistanceX", 1, 2, 1, 1, 10.0))
sketch21.addConstraint(Sketcher.Constraint("DistanceY", 0, 1, 0, 2, 2.5))
sketch21.addConstraint(Sketcher.Constraint("DistanceX", 0, 2, 4, 2, 54.0))
sketch21.addConstraint(Sketcher.Constraint("DistanceY", 8, 2, 7, 2, 53.0))
sketch21.addConstraint(Sketcher.Constraint("DistanceX", 0, 2, -1, 1, 61.486212))
sketch21.addConstraint(Sketcher.Constraint("DistanceY", -1, 1, 0, 2, 27.398065))
sketch21.setExpression("Constraints[42]", "Params.sketch21_width")
sketch21.setExpression("Constraints[43]", "Params.sketch21_height")
pocket15 = body.newObject("PartDesign::Pocket", "Pocket014")
pocket15.Profile = sketch21
pocket15.setExpression("Length", "Params.pocket15_length")

doc.recompute()
